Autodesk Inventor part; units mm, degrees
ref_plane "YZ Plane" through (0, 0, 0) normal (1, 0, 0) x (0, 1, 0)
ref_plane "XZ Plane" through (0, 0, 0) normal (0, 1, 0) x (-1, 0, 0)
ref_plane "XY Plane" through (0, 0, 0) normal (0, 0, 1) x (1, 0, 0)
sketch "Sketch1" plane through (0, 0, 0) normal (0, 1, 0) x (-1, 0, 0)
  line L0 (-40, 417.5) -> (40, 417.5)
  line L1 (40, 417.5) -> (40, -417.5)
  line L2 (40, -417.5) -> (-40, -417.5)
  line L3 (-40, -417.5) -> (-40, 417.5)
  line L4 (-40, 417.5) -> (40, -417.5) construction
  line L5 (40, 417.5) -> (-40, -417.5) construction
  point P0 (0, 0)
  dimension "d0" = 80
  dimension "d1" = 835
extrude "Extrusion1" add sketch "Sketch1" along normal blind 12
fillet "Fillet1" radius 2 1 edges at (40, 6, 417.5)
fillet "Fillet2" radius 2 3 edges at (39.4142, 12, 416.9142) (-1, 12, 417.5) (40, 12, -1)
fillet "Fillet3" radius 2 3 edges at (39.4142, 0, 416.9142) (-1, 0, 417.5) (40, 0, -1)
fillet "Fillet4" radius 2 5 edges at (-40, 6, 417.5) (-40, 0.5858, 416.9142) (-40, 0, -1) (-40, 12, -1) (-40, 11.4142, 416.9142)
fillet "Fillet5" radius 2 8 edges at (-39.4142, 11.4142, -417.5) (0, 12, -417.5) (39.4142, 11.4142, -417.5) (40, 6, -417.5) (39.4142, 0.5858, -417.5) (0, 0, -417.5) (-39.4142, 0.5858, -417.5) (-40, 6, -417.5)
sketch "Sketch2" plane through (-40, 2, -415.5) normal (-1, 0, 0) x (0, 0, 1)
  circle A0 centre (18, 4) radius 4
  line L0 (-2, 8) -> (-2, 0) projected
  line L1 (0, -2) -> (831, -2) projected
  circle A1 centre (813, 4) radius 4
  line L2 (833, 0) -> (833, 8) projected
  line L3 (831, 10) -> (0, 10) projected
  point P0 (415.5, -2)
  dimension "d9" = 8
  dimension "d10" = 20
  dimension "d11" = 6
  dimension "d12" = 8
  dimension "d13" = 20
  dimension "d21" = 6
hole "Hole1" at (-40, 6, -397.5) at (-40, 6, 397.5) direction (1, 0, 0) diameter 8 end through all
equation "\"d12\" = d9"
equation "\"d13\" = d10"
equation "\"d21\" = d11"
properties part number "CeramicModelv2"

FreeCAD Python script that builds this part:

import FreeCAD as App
import Part
import Sketcher


def edges_at(feature, points):
    """Names of the edges that pass closest to the given points."""
    edges = feature.Shape.Edges
    near = lambda p: min(range(len(edges)), key=lambda i: edges[i].distToShape(Part.Vertex(*p))[0])
    return sorted({f"Edge{near(p) + 1}" for p in points})

doc = App.newDocument("Part")
params = doc.addObject("Spreadsheet::Sheet", "Params")
for row, (alias, value) in enumerate([
    ("sketch1_width", "80 mm"),
    ("sketch1_height", "835 mm"),
    ("pad1_length", "12 mm"),
    ("fillet_radius", "2 mm"),
    ("fillet2_radius", "2 mm"),
    ("fillet3_radius", "2 mm"),
    ("fillet4_radius", "2 mm"),
    ("fillet5_radius", "2 mm"),
    ("sketch2_diameter", "8 mm"),
    ("hole_diameter", "8 mm"),
], start=1):
    params.set(f"A{row}", alias)
    params.set(f"B{row}", "=" + value)
    params.setAlias(f"B{row}", alias)

body = doc.addObject("PartDesign::Body", "Body")

sketch1 = body.newObject("Sketcher::SketchObject", "Sketch")
sketch1.AttachmentSupport = (doc.getObject("XZ_Plane"), [""])
sketch1.MapMode = "FlatFace"
sketch1.addGeometry([
    Part.LineSegment(App.Vector(-40, 417.5, 0), App.Vector(40, 417.5, 0)),
    Part.LineSegment(App.Vector(40, 417.5, 0), App.Vector(40, -417.5, 0)),
    Part.LineSegment(App.Vector(40, -417.5, 0), App.Vector(-40, -417.5, 0)),
    Part.LineSegment(App.Vector(-40, -417.5, 0), App.Vector(-40, 417.5, 0)),
], False)
sketch1.addConstraint([
    Sketcher.Constraint("Coincident", 0, 2, 1, 1),
    Sketcher.Constraint("Coincident", 1, 2, 2, 1),
    Sketcher.Constraint("Coincident", 2, 2, 3, 1),
    Sketcher.Constraint("Coincident", 3, 2, 0, 1),
    Sketcher.Constraint("Horizontal", 0),
    Sketcher.Constraint("Vertical", 1),
    Sketcher.Constraint("Horizontal", 2),
    Sketcher.Constraint("Vertical", 3),
    Sketcher.Constraint("Symmetric", 0, 2, 2, 2, -1, 1),
    Sketcher.Constraint("DistanceX", 0, 1, 0, 2, 80.0),
    Sketcher.Constraint("DistanceY", 1, 2, 1, 1, 835.0),
])
sketch1.setExpression("Constraints[9]", "Params.sketch1_width")
sketch1.setExpression("Constraints[10]", "Params.sketch1_height")
pad1 = body.newObject("PartDesign::Pad", "Pad")
pad1.Profile = sketch1
pad1.setExpression("Length", "Params.pad1_length")
pad1.Reversed = True
doc.recompute()

fillet = body.newObject("PartDesign::Fillet", "Fillet")
fillet.Base = (pad1, edges_at(pad1, [(40, 6, 417.5)]))
fillet.setExpression("Radius", "Params.fillet_radius")
doc.recompute()

fillet2 = body.newObject("PartDesign::Fillet", "Fillet001")
fillet2.Base = (fillet, edges_at(fillet, [(39.414, 12, 416.914), (-1, 12, 417.5), (40, 12, -1)]))
fillet2.setExpression("Radius", "Params.fillet2_radius")
doc.recompute()

fillet3 = body.newObject("PartDesign::Fillet", "Fillet002")
fillet3.Base = (fillet2, edges_at(fillet2, [(39.414, 0, 416.914), (-1, 0, 417.5), (40, 0, -1)]))
fillet3.setExpression("Radius", "Params.fillet3_radius")
doc.recompute()

fillet4 = body.newObject("PartDesign::Fillet", "Fillet003")
fillet4.Base = (fillet3, edges_at(fillet3, [
    (-40, 6, 417.5),
    (-40, 0.586, 416.914),
    (-40, 0, -1),
    (-40, 12, -1),
    (-40, 11.414, 416.914),
]))
fillet4.setExpression("Radius", "Params.fillet4_radius")
doc.recompute()

fillet5 = body.newObject("PartDesign::Fillet", "Fillet004")
fillet5.Base = (fillet4, edges_at(fillet4, [
    (-39.414, 11.414, -417.5),
    (0, 12, -417.5),
    (39.414, 11.414, -417.5),
    (40, 6, -417.5),
    (39.414, 0.586, -417.5),
    (0, 0, -417.5),
    (-39.414, 0.586, -417.5),
    (-40, 6, -417.5),
]))
fillet5.setExpression("Radius", "Params.fillet5_radius")

sketch2 = body.newObject("Sketcher::SketchObject", "Sketch001")
sketch2.AttachmentSupport = (doc.getObject("YZ_Plane"), [""])
sketch2.MapMode = "FlatFace"
sketch2.AttachmentOffset = App.Placement(App.Vector(0, 0, -40), App.Rotation())
sketch2.addGeometry([
    Part.Circle(App.Vector(6, -397.5, 0), App.Vector(0, 0, 1), 4),
    Part.Circle(App.Vector(6, 397.5, 0), App.Vector(0, 0, 1), 4),
], False)
sketch2.addConstraint([
    Sketcher.Constraint("Equal", 0, 1),
    Sketcher.Constraint("Symmetric", 0, 3, 1, 3, -1),
    Sketcher.Constraint("Diameter", 0, 8.0),
    Sketcher.Constraint("DistanceX", -1, 1, 0, 3, 6.0),
    Sketcher.Constraint("DistanceY", 0, 3, 1, 3, 795.0),
])
sketch2.setExpression("Constraints[2]", "Params.sketch2_diameter")
doc.recompute()
hole = body.newObject("PartDesign::Hole", "Hole")
hole.Profile = sketch2
hole.ThreadType = "None"
hole.setExpression("Diameter", "Params.hole_diameter")
hole.DepthType = "ThroughAll"
hole.Reversed = True

doc.recompute()
